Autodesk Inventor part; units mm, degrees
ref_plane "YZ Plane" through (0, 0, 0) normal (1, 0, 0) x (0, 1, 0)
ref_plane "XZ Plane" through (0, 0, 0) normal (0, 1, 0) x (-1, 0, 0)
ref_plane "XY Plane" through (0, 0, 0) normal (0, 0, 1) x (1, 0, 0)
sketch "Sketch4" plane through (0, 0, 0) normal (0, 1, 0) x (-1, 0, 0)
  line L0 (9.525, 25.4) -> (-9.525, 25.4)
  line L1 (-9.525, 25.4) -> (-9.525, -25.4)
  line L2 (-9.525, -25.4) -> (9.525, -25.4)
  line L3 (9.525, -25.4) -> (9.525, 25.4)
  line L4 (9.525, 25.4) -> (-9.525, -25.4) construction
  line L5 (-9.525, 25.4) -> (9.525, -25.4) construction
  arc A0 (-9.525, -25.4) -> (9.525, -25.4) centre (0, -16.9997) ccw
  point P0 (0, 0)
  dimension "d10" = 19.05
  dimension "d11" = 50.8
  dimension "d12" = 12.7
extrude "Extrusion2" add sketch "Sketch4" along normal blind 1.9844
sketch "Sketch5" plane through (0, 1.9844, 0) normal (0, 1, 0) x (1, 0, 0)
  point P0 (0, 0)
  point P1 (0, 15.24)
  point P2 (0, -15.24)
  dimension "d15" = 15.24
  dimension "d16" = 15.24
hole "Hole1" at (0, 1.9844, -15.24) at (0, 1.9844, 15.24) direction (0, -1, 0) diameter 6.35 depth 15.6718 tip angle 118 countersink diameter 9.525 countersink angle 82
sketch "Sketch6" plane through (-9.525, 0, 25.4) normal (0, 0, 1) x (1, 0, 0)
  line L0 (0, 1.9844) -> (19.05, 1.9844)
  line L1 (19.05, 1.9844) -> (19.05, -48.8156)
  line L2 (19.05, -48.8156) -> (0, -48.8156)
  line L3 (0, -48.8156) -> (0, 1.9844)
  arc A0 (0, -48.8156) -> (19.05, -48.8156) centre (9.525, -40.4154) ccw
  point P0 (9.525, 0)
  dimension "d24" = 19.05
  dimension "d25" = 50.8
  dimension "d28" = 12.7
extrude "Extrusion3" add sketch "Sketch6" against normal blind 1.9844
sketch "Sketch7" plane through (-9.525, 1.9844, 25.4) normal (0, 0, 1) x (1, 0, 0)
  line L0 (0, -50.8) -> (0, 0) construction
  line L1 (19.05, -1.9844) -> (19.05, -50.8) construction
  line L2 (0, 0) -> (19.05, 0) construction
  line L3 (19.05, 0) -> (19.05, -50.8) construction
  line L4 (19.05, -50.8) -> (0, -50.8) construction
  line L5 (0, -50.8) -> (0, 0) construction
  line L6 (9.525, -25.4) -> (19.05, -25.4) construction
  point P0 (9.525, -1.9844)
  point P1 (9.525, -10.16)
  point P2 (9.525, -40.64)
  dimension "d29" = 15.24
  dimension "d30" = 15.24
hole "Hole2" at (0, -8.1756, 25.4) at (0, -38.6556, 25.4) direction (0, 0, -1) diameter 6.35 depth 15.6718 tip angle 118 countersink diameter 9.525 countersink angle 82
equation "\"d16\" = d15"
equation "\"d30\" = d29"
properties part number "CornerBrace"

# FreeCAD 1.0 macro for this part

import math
import FreeCAD as App
import Part
import Sketcher
Q = App.Units.Quantity

doc = App.newDocument("Part")
body = doc.addObject("PartDesign::Body", "Body")

# Sketch on XZ plane
sketch1 = body.newObject("Sketcher::SketchObject", "Sketch")
sketch1.AttachmentSupport = (doc.getObject("XZ_Plane"), [""])
sketch1.MapMode = "FlatFace"
sketch1.addGeometry(Part.LineSegment(App.Vector(-10, -25, 0), App.Vector(-10, 25, 0)), False)
sketch1.addGeometry(Part.LineSegment(App.Vector(-10, 25, 0), App.Vector(10, 25, 0)), False)
sketch1.addGeometry(Part.LineSegment(App.Vector(10, 25, 0), App.Vector(10, -25, 0)), False)
sketch1.addGeometry(Part.ArcOfCircle(Part.Circle(App.Vector(0, -17, 0), App.Vector(0, 0, 1), 13), math.radians(-139), math.radians(-41)), False)
sketch1.addConstraint(Sketcher.Constraint("Coincident", 0, 2, 1, 1))
sketch1.addConstraint(Sketcher.Constraint("Coincident", 1, 2, 2, 1))
sketch1.addConstraint(Sketcher.Constraint("Coincident", 2, 2, 3, 2))
sketch1.addConstraint(Sketcher.Constraint("Coincident", 3, 1, 0, 1))
sketch1.addConstraint(Sketcher.Constraint("Vertical", 0))
sketch1.addConstraint(Sketcher.Constraint("Horizontal", 1))
sketch1.addConstraint(Sketcher.Constraint("Vertical", 2))
sketch1.addConstraint(Sketcher.Constraint("Symmetric", 0, 2, 2, 2, -1, 1))
sketch1.addConstraint(Sketcher.Constraint("PointOnObject", 3, 3, -2))
sketch1.addConstraint(Sketcher.Constraint("Radius", 3, Q("0.5 in")))
sketch1.addConstraint(Sketcher.Constraint("DistanceY", 0, 1, 0, 2, Q("2 in")))
sketch1.addConstraint(Sketcher.Constraint("DistanceX", 1, 1, 1, 2, Q("0.75 in")))
pad1 = body.newObject("PartDesign::Pad", "Pad")
pad1.Profile = sketch1
pad1.Length = Q("0.078126 in")
pad1.Reversed = True

# Sketch on XZ plane
sketch2 = body.newObject("Sketcher::SketchObject", "Sketch001")
sketch2.AttachmentSupport = (doc.getObject("XZ_Plane"), [""])
sketch2.MapMode = "FlatFace"
sketch2.AttachmentOffset = App.Placement(App.Vector(0, 0, -0.078126 * 25.4), App.Rotation())
sketch2.addGeometry(Part.Circle(App.Vector(0, -15.2, 0), App.Vector(0, 0, 1), 3.2), False)
sketch2.addGeometry(Part.Circle(App.Vector(0, 15.2, 0), App.Vector(0, 0, 1), 3.2), False)
sketch2.addConstraint(Sketcher.Constraint("Equal", 0, 1))
sketch2.addConstraint(Sketcher.Constraint("Symmetric", 0, 3, 1, 3, -1, 1))
sketch2.addConstraint(Sketcher.Constraint("PointOnObject", 0, 3, -2))
sketch2.addConstraint(Sketcher.Constraint("Diameter", 0, Q("0.25 in")))
sketch2.addConstraint(Sketcher.Constraint("DistanceY", 0, 3, -1, 1, Q("0.6 in")))
doc.recompute()
hole = body.newObject("PartDesign::Hole", "Hole")
hole.Profile = sketch2
hole.ThreadType = "None"
hole.Diameter = Q("0.25 in")
hole.DepthType = "Dimension"
hole.Depth = Q("0.617 in")
hole.DrillPoint = "Angled"
hole.DrillPointAngle = 118
hole.HoleCutType = "Countersink"
hole.HoleCutDiameter = Q("0.375 in")
hole.HoleCutCountersinkAngle = 82
hole.Reversed = True

# Sketch on XY plane
sketch3 = body.newObject("Sketcher::SketchObject", "Sketch002")
sketch3.AttachmentSupport = (doc.getObject("XY_Plane"), [""])
sketch3.MapMode = "FlatFace"
sketch3.AttachmentOffset = App.Placement(App.Vector(0, 0, 1 * 25.4), App.Rotation())
sketch3.addGeometry(Part.LineSegment(App.Vector(10, 2, 0), App.Vector(-10, 2, 0)), False)
sketch3.addGeometry(Part.LineSegment(App.Vector(-10, 2, 0), App.Vector(-10, -49, 0)), False)
sketch3.addGeometry(Part.ArcOfCircle(Part.Circle(App.Vector(0, -40, 0), App.Vector(0, 0, 1), 13), math.radians(-139), math.radians(-41)), False)
sketch3.addGeometry(Part.LineSegment(App.Vector(10, -49, 0), App.Vector(10, 2, 0)), False)
sketch3.addConstraint(Sketcher.Constraint("Coincident", 0, 2, 1, 1))
sketch3.addConstraint(Sketcher.Constraint("Coincident", 1, 2, 2, 1))
sketch3.addConstraint(Sketcher.Constraint("Coincident", 2, 2, 3, 1))
sketch3.addConstraint(Sketcher.Constraint("Coincident", 3, 2, 0, 1))
sketch3.addConstraint(Sketcher.Constraint("Horizontal", 0))
sketch3.addConstraint(Sketcher.Constraint("Vertical", 1))
sketch3.addConstraint(Sketcher.Constraint("Vertical", 3))
sketch3.addConstraint(Sketcher.Constraint("Symmetric", 1, 2, 2, 2, -2))
sketch3.addConstraint(Sketcher.Constraint("Radius", 2, Q("0.5 in")))
sketch3.addConstraint(Sketcher.Constraint("DistanceY", 1, 2, 1, 1, Q("2 in")))
sketch3.addConstraint(Sketcher.Constraint("DistanceX", 0, 2, 0, 1, Q("0.75 in")))
sketch3.addConstraint(Sketcher.Constraint("DistanceY", -1, 1, 0, 2, Q("0.078126 in")))
pad2 = body.newObject("PartDesign::Pad", "Pad001")
pad2.Profile = sketch3
pad2.Length = Q("0.078126 in")
pad2.Reversed = True

# Sketch on XY plane
sketch4 = body.newObject("Sketcher::SketchObject", "Sketch003")
sketch4.AttachmentSupport = (doc.getObject("XY_Plane"), [""])
sketch4.MapMode = "FlatFace"
sketch4.AttachmentOffset = App.Placement(App.Vector(0, 0, 1 * 25.4), App.Rotation())
sketch4.addGeometry(Part.Circle(App.Vector(0, -8.2, 0), App.Vector(0, 0, 1), 3.2), False)
sketch4.addGeometry(Part.Circle(App.Vector(0, -38.7, 0), App.Vector(0, 0, 1), 3.2), False)
sketch4.addConstraint(Sketcher.Constraint("Equal", 0, 1))
sketch4.addConstraint(Sketcher.Constraint("PointOnObject", 0, 3, -2))
sketch4.addConstraint(Sketcher.Constraint("PointOnObject", 1, 3, -2))
sketch4.addConstraint(Sketcher.Constraint("Diameter", 0, Q("0.25 in")))
sketch4.addConstraint(Sketcher.Constraint("DistanceY", 1, 3, 0, 3, Q("1.2 in")))
sketch4.addConstraint(Sketcher.Constraint("DistanceY", 0, 3, -1, 1, 8.1756))
doc.recompute()
hole2 = body.newObject("PartDesign::Hole", "Hole001")
hole2.Profile = sketch4
hole2.ThreadType = "None"
hole2.Diameter = Q("0.25 in")
hole2.DepthType = "Dimension"
hole2.Depth = Q("0.617 in")
hole2.DrillPoint = "Angled"
hole2.DrillPointAngle = 118
hole2.HoleCutType = "Countersink"
hole2.HoleCutDiameter = Q("0.375 in")
hole2.HoleCutCountersinkAngle = 82

doc.recompute()
